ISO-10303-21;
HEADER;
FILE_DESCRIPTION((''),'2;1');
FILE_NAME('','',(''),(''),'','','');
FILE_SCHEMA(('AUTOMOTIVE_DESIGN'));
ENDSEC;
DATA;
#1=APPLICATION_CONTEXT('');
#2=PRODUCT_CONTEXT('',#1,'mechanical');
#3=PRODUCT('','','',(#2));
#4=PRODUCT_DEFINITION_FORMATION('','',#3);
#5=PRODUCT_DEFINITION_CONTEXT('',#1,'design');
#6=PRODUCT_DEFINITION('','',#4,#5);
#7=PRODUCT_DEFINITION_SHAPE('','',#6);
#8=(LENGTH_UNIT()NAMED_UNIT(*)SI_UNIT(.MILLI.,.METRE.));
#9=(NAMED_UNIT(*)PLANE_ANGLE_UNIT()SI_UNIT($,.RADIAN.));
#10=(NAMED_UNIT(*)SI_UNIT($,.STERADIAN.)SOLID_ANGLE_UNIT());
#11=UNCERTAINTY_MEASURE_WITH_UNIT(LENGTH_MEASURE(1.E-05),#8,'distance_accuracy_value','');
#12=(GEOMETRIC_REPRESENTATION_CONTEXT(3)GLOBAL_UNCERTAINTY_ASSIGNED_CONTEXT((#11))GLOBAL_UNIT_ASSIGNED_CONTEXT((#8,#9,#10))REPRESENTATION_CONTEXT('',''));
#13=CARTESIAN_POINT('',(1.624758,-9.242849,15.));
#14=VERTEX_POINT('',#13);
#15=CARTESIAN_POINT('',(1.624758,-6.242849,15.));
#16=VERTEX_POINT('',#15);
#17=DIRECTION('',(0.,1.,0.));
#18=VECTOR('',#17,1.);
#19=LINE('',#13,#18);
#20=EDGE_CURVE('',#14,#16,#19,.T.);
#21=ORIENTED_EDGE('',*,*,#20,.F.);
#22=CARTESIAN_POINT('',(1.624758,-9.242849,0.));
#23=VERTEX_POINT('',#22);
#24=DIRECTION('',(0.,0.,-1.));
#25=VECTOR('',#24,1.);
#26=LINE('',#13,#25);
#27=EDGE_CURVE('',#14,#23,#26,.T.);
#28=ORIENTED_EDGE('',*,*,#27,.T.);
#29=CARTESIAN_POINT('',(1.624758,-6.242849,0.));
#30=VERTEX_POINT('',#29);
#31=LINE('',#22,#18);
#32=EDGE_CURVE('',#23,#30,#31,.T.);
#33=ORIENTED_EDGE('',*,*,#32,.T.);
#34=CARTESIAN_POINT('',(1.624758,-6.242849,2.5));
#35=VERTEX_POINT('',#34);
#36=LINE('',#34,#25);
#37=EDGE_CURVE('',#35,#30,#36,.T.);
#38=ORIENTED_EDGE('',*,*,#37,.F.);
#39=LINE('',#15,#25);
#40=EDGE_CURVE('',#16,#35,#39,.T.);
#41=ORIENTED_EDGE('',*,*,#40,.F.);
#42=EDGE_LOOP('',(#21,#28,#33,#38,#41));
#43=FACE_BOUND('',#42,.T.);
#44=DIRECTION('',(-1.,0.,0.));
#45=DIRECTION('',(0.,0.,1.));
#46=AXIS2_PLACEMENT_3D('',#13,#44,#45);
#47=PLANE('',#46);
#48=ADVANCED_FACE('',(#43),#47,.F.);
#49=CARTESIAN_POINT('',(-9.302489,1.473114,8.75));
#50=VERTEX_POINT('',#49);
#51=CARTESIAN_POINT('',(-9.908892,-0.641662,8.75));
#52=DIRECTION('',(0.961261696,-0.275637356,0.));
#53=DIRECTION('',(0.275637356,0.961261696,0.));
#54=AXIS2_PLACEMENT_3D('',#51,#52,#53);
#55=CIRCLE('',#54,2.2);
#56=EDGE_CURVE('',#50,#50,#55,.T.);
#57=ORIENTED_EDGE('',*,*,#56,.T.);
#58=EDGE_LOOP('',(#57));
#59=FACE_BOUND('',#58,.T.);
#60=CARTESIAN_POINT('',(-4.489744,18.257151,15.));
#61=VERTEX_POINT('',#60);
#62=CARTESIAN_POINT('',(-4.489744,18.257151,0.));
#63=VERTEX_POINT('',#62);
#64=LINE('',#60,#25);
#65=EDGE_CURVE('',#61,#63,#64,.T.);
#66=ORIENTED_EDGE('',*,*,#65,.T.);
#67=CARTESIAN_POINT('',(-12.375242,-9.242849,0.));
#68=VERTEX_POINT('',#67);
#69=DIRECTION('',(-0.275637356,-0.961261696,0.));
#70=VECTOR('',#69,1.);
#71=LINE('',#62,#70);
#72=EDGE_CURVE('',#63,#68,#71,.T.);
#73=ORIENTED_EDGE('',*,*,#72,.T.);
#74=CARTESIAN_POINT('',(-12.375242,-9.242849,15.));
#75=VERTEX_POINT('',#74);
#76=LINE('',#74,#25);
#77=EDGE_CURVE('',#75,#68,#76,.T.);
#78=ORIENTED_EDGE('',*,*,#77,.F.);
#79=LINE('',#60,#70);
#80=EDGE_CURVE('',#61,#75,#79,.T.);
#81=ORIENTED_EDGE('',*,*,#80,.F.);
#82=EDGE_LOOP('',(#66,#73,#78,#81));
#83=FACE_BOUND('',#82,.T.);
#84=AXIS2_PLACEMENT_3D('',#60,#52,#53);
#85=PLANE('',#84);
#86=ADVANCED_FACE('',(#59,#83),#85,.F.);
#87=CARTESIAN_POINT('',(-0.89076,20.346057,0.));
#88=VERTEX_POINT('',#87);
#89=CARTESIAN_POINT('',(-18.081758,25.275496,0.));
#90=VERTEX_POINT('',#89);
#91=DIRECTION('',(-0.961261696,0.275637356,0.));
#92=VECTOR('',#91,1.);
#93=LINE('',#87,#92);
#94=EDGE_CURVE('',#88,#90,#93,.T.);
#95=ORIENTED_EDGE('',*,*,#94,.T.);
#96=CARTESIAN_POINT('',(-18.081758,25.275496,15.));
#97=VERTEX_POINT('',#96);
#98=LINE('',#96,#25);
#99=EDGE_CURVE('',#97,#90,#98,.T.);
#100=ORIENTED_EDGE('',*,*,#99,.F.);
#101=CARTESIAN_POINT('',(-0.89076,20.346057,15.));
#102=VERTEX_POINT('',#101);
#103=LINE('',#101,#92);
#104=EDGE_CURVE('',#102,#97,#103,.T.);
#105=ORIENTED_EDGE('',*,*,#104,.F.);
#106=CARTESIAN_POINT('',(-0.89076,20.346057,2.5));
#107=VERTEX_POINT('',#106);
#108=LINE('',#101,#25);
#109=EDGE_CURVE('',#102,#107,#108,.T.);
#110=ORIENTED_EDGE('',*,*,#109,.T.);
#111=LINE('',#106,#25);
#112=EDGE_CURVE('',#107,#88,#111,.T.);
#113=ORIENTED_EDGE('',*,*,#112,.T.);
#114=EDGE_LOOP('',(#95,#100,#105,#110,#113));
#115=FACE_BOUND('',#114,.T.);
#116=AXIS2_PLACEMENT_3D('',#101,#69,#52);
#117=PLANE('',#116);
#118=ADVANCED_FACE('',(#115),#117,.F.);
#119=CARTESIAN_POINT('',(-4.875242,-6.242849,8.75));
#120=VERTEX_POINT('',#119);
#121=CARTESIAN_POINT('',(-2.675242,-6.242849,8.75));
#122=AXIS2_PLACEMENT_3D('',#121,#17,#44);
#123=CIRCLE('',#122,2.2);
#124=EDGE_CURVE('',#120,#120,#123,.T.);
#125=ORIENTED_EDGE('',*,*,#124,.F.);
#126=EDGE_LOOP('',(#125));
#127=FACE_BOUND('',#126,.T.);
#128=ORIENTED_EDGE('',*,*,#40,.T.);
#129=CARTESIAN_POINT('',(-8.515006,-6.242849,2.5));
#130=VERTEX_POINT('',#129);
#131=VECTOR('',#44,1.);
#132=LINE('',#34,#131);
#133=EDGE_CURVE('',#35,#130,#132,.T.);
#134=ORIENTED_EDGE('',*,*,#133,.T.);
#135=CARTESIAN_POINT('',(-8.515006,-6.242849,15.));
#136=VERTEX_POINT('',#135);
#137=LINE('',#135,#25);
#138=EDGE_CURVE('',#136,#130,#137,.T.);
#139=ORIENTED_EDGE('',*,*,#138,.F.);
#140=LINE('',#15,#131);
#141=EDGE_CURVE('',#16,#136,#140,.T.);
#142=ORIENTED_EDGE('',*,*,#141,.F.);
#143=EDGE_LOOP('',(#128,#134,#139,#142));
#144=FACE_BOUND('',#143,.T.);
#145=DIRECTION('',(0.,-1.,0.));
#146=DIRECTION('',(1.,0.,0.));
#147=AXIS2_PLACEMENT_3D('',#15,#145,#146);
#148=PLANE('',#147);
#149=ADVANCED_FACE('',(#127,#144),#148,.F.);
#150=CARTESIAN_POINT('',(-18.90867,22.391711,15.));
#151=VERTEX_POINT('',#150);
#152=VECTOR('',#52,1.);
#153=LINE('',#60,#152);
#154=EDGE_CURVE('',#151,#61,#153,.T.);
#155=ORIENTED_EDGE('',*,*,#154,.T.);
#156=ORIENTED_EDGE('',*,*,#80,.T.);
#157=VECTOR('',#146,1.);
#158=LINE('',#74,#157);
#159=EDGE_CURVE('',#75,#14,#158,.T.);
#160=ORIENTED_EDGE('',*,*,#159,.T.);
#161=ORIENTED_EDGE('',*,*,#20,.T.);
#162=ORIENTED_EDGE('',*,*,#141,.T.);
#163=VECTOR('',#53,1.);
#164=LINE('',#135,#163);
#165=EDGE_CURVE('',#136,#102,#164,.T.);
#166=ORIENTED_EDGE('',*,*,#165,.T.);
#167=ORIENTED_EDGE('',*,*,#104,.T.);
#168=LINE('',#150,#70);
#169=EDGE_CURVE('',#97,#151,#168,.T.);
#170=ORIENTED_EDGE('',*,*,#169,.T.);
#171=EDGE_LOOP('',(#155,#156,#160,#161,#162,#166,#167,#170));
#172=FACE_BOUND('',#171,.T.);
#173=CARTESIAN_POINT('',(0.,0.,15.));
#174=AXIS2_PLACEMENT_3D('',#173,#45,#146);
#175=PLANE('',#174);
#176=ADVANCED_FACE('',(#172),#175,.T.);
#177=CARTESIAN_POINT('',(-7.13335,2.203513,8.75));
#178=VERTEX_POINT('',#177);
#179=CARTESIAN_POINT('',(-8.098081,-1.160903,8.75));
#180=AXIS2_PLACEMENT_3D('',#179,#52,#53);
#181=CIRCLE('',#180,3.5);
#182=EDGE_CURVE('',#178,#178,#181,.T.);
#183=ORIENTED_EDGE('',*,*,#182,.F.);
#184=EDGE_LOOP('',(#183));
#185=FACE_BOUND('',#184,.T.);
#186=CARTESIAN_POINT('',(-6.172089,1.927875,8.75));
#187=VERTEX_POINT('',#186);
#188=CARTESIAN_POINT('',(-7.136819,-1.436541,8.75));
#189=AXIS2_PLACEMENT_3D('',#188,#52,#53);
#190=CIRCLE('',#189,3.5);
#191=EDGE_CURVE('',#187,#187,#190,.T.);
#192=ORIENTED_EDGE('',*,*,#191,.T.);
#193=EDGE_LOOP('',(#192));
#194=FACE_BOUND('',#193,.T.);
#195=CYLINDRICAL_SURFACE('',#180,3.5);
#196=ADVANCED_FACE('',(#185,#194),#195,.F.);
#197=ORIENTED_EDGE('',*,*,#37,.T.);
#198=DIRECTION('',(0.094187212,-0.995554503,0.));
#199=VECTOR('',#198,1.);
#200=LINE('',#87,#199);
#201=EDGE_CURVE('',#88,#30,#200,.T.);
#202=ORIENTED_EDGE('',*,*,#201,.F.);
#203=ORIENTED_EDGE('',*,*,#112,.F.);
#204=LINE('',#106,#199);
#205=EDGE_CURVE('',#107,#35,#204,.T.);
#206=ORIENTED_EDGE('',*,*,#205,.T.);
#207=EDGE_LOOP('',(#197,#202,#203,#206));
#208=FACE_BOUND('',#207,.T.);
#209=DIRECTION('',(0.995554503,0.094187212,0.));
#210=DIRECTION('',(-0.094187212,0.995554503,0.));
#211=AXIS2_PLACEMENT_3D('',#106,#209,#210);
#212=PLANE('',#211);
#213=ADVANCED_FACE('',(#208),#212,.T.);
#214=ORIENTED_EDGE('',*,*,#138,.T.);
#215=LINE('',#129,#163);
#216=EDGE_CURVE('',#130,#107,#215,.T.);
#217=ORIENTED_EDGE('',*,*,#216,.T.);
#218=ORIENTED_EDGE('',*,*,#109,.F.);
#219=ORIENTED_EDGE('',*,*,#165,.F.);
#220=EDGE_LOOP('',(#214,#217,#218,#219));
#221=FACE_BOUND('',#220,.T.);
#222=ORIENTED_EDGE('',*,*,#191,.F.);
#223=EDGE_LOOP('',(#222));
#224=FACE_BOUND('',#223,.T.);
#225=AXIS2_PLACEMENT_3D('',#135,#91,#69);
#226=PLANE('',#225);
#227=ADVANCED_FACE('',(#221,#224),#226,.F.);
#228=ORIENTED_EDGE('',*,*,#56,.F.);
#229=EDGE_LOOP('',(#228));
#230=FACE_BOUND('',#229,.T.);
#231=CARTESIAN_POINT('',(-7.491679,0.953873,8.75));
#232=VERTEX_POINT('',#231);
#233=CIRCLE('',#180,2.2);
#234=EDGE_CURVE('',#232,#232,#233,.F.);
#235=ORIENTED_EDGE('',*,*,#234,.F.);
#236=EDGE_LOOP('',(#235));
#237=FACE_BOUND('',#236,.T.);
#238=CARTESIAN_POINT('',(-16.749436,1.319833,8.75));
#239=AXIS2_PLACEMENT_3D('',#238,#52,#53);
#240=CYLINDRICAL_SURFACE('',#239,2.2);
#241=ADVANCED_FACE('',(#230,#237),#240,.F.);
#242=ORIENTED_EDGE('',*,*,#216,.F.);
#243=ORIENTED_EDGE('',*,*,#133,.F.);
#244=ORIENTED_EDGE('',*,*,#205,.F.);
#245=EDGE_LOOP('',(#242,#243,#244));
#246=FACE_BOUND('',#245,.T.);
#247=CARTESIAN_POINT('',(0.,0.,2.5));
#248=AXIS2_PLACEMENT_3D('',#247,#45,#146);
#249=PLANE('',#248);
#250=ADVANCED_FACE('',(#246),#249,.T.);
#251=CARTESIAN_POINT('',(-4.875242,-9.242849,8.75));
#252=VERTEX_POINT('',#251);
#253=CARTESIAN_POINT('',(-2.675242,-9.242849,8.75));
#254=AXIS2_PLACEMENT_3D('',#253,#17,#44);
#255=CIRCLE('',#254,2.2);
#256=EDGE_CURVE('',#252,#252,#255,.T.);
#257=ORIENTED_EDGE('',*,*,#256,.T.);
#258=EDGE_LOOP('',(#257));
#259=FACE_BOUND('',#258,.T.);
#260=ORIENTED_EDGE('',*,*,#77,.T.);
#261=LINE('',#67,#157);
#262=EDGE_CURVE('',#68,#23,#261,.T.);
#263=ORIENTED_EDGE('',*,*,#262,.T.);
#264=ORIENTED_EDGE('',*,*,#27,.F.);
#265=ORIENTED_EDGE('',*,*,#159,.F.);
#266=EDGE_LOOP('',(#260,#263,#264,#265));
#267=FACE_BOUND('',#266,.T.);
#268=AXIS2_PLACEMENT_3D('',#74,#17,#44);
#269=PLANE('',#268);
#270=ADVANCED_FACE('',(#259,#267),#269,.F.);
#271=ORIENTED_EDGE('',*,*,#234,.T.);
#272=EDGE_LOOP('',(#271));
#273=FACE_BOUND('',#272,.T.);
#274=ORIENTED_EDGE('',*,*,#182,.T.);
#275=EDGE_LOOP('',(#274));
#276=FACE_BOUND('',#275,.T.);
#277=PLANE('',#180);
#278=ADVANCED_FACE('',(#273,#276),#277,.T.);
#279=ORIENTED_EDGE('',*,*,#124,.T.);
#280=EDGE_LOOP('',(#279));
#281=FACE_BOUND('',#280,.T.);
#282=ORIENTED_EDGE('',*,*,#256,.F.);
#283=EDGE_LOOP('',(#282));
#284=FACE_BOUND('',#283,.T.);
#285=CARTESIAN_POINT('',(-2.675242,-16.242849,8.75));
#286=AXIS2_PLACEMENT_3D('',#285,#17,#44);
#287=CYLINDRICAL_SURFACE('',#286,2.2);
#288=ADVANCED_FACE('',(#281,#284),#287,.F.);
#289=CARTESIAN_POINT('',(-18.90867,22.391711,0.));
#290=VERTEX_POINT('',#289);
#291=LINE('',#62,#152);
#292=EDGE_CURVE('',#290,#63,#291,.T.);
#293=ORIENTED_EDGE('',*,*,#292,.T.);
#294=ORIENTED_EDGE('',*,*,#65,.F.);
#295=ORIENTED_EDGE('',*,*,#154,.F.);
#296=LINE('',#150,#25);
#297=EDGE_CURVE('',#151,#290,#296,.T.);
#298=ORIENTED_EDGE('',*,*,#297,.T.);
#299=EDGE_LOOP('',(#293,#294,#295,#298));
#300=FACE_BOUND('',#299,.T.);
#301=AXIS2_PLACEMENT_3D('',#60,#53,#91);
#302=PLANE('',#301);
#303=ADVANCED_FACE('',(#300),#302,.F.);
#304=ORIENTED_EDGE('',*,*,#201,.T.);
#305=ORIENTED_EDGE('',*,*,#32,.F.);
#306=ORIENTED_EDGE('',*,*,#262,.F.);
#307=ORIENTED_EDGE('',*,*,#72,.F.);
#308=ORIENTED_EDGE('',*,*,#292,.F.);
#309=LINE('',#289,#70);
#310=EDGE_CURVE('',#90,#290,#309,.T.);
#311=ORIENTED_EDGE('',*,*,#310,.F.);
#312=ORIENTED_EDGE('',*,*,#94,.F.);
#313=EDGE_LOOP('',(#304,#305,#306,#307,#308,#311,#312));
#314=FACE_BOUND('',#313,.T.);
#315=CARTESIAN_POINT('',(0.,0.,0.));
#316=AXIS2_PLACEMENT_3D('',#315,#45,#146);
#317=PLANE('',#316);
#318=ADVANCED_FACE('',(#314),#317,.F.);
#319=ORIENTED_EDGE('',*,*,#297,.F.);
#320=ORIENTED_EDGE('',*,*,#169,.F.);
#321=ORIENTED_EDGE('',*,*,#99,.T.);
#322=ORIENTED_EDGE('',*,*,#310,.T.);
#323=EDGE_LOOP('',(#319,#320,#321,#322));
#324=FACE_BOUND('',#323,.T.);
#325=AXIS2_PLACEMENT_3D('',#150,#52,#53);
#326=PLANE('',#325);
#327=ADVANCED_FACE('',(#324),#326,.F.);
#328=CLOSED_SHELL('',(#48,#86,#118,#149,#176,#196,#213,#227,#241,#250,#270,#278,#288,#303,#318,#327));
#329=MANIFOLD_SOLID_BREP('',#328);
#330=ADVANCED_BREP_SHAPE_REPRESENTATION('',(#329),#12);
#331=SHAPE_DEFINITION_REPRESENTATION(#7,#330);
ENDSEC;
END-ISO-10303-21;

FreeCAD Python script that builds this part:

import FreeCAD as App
import Part
import Sketcher
Q = App.Units.Quantity

doc = App.newDocument("Part")
body = doc.addObject("PartDesign::Body", "Body")

sketch1 = body.newObject("Sketcher::SketchObject", "Sketch")
sketch1.AttachmentSupport = (doc.getObject("XY_Plane"), [""])
sketch1.MapMode = "FlatFace"
sketch1.addGeometry([
    Part.LineSegment(App.Vector(-4.489744, 18.257151, 0), App.Vector(-12.375242, -9.242849, 0)),
    Part.LineSegment(App.Vector(-12.375242, -9.242849, 0), App.Vector(1.624758, -9.242849, 0)),
    Part.LineSegment(App.Vector(1.624758, -9.242849, 0), App.Vector(1.624758, -6.242849, 0)),
    Part.LineSegment(App.Vector(1.624758, -6.242849, 0), App.Vector(-8.515006, -6.242849, 0)),
    Part.LineSegment(App.Vector(-8.515006, -6.242849, 0), App.Vector(-0.89076, 20.346057, 0)),
    Part.LineSegment(App.Vector(-0.89076, 20.346057, 0), App.Vector(-18.081758, 25.275496, 0)),
    Part.LineSegment(App.Vector(-18.081758, 25.275496, 0), App.Vector(-18.90867, 22.391711, 0)),
    Part.LineSegment(App.Vector(-18.90867, 22.391711, 0), App.Vector(-4.489744, 18.257151, 0)),
], False)
sketch1.addConstraint([
    Sketcher.Constraint("Coincident", 0, 2, 1, 1),
    Sketcher.Constraint("Coincident", 1, 2, 2, 1),
    Sketcher.Constraint("Coincident", 2, 2, 3, 1),
    Sketcher.Constraint("Coincident", 3, 2, 4, 1),
    Sketcher.Constraint("Coincident", 4, 2, 5, 1),
    Sketcher.Constraint("Coincident", 5, 2, 6, 1),
    Sketcher.Constraint("Coincident", 6, 2, 7, 1),
    Sketcher.Constraint("Coincident", 7, 2, 0, 1),
    Sketcher.Constraint("Horizontal", 1),
    Sketcher.Constraint("Vertical", 2),
    Sketcher.Constraint("Horizontal", 3),
    Sketcher.Constraint("Parallel", 0, 4),
    Sketcher.Constraint("Perpendicular", 4, 5),
    Sketcher.Constraint("Perpendicular", 5, 6),
    Sketcher.Constraint("Perpendicular", 6, 7),
    Sketcher.Constraint("DistanceX", 1, 1, 1, 2, 14.0),
    Sketcher.Constraint("DistanceY", 2, 1, 2, 2, 3.0),
    Sketcher.Constraint("Angle", 0, Q("-106 deg")),
    Sketcher.Constraint("Distance", 6, 3.0),
    Sketcher.Constraint("Distance", 7, 15.0),
    Sketcher.Constraint("DistanceY", 3, 2, 7, 2, 24.5),
    Sketcher.Constraint("DistanceX", 3, 2, 3, 1, 10.139764),
    Sketcher.Constraint("DistanceY", 0, 2, -1, 1, 9.242849),
    Sketcher.Constraint("DistanceX", 4, 2, -1, 1, 0.89076),
])
pad1 = body.newObject("PartDesign::Pad", "Pad")
pad1.Profile = sketch1
pad1.Length = 15

sketch2 = body.newObject("Sketcher::SketchObject", "Sketch001")
sketch2.AttachmentSupport = (doc.getObject("XY_Plane"), [""])
sketch2.MapMode = "FlatFace"
sketch2.addGeometry([
    Part.LineSegment(App.Vector(-0.89076, 20.346057, 0), App.Vector(1.624758, -6.242849, 0)),
    Part.LineSegment(App.Vector(1.624758, -6.242849, 0), App.Vector(-8.515006, -6.242849, 0)),
    Part.LineSegment(App.Vector(-8.515006, -6.242849, 0), App.Vector(-0.89076, 20.346057, 0)),
], False)
sketch2.addConstraint([
    Sketcher.Constraint("Coincident", 0, 2, 1, 1),
    Sketcher.Constraint("Coincident", 1, 2, 2, 1),
    Sketcher.Constraint("Coincident", 2, 2, 0, 1),
    Sketcher.Constraint("Horizontal", 1),
    Sketcher.Constraint("Angle", 2, Q("74 deg")),
    Sketcher.Constraint("DistanceX", 1, 2, 1, 1, 10.139764),
    Sketcher.Constraint("DistanceY", 0, 2, -1, 1, 6.242849),
    Sketcher.Constraint("DistanceX", 2, 2, -1, 1, 0.89076),
    Sketcher.Constraint("Distance", 0, 26.707635),
])
pad2 = body.newObject("PartDesign::Pad", "Pad001")
pad2.Profile = sketch2
pad2.Length = 2.5

sketch3 = body.newObject("Sketcher::SketchObject", "Sketch002")
sketch3.AttachmentSupport = (doc.getObject("XZ_Plane"), [""])
sketch3.MapMode = "FlatFace"
sketch3.AttachmentOffset = App.Placement(App.Vector(0, 0, 6.242849), App.Rotation())
sketch3.addGeometry(Part.Circle(App.Vector(-2.675242, 8.75, 0), App.Vector(0, 0, 1), 2.2), False)
sketch3.addConstraint([
    Sketcher.Constraint("Diameter", 0, 4.4),
    Sketcher.Constraint("DistanceY", -1, 1, 0, 3, 8.75),
    Sketcher.Constraint("DistanceX", 0, 3, -1, 1, 2.675242),
])
pocket1 = body.newObject("PartDesign::Pocket", "Pocket")
pocket1.Profile = sketch3
pocket1.Length = 10
pocket1.Reversed = True

sketch4 = body.newObject("Sketcher::SketchObject", "Sketch003")
sketch4.Placement = App.Placement(App.Vector(-6.213967, 1.781827, 0), App.Rotation(App.Vector(0, 0, -1), App.Vector(0.275637356, 0.961261696, 0), App.Vector(0.961261696, -0.275637356, 0), "ZXY"))
sketch4.addGeometry(Part.Circle(App.Vector(-8.75, -3.348065, 0), App.Vector(0, 0, 1), 2.2), False)
sketch4.addConstraint([
    Sketcher.Constraint("Diameter", 0, 4.4),
    Sketcher.Constraint("DistanceX", 0, 3, -1, 1, 8.75),
    Sketcher.Constraint("DistanceY", 0, 3, -1, 1, 3.348065),
])
pocket2 = body.newObject("PartDesign::Pocket", "Pocket001")
pocket2.Profile = sketch4
pocket2.Length = 10

sketch5 = body.newObject("Sketcher::SketchObject", "Sketch004")
sketch5.Placement = App.Placement(App.Vector(-6.213967, 1.781827, 0), App.Rotation(App.Vector(0, 0, -1), App.Vector(0.275637356, 0.961261696, 0), App.Vector(0.961261696, -0.275637356, 0), "ZXY"))
sketch5.addGeometry(Part.Circle(App.Vector(-8.75, -3.348065, 0), App.Vector(0, 0, 1), 3.5), False)
sketch5.addConstraint([
    Sketcher.Constraint("Diameter", 0, 7.0),
    Sketcher.Constraint("DistanceX", 0, 3, -1, 1, 8.75),
    Sketcher.Constraint("DistanceY", 0, 3, -1, 1, 3.348065),
])
pocket3 = body.newObject("PartDesign::Pocket", "Pocket002")
pocket3.Profile = sketch5
pocket3.Length = 1

doc.recompute()
